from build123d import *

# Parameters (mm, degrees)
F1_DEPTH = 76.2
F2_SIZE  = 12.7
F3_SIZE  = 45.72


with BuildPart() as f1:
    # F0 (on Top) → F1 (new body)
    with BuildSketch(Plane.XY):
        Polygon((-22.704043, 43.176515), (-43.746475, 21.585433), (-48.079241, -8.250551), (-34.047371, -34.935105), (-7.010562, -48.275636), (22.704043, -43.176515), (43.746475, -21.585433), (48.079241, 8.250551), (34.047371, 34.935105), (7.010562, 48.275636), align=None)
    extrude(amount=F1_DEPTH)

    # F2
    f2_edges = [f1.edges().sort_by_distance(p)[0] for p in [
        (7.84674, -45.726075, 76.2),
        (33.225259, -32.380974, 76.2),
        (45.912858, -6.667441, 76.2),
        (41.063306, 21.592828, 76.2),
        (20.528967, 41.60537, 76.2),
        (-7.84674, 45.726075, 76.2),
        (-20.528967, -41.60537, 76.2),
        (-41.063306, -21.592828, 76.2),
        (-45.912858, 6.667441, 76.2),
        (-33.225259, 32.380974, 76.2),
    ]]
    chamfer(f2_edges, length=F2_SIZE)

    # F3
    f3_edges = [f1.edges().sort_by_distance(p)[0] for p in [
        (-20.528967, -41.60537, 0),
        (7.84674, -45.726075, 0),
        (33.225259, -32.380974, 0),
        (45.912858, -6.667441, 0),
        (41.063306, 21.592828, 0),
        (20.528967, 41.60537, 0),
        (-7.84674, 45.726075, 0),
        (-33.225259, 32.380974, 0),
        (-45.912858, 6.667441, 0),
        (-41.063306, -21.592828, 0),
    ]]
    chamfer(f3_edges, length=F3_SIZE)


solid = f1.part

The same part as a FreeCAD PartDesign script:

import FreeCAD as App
import Part
import Sketcher
from FreeCAD import Vector
Q = App.Units.Quantity


def edges_at(feature, points):
    """Names of the edges that pass closest to the given points."""
    edges = feature.Shape.Edges
    near = lambda p: min(range(len(edges)), key=lambda i: edges[i].distToShape(Part.Vertex(*p))[0])
    return sorted({f"Edge{near(p) + 1}" for p in points})


def add_polygon(sketch, points):
    """Adds a closed chain of lines whose ends are joined by coincident constraints."""
    first, n = sketch.GeometryCount, len(points)
    for a, b in zip(points, points[1:] + points[:1]):
        sketch.addGeometry(Part.LineSegment(App.Vector(*a, 0), App.Vector(*b, 0)), False)
    for i in range(n):
        sketch.addConstraint(Sketcher.Constraint("Coincident", first + i, 2, first + (i + 1) % n, 1))

doc = App.newDocument("Part")
body = doc.addObject("PartDesign::Body", "Body")

# Sketch on XY plane
sketch1 = doc.addObject("Sketcher::SketchObject", "Sketch")
body.addObject(sketch1)
sketch1.AttachmentSupport = (doc.XY_Plane, [""])
sketch1.MapMode = "FlatFace"
add_polygon(sketch1, [(-23, 43), (-44, 22), (-48, -8), (-34, -35), (-7, -48), (23, -43), (44, -22), (48, 8), (34, 35), (7, 48)])  # lines 0-9
sketch1.addConstraint(Sketcher.Constraint("Symmetric", 0, 2, 5, 2, -1, 1))
sketch1.addConstraint(Sketcher.Constraint("Symmetric", 1, 2, 6, 2, -1, 1))
sketch1.addConstraint(Sketcher.Constraint("Symmetric", 2, 2, 7, 2, -1, 1))
sketch1.addConstraint(Sketcher.Constraint("Symmetric", 3, 2, 8, 2, -1, 1))
sketch1.addConstraint(Sketcher.Constraint("Symmetric", 4, 2, 9, 2, -1, 1))
sketch1.addConstraint(Sketcher.Constraint("Equal", 0, 1))
sketch1.addConstraint(Sketcher.Constraint("Equal", 1, 2))
sketch1.addConstraint(Sketcher.Constraint("Equal", 2, 3))
sketch1.addConstraint(Sketcher.Constraint("Equal", 3, 4))
sketch1.addConstraint(Sketcher.Constraint("DistanceX", 4, 2, 6, 2, Q("25.375198 mm")))
sketch1.addConstraint(Sketcher.Constraint("DistanceX", 1, 2, -1, 1, Q("48.079241 mm")))
sketch1.addConstraint(Sketcher.Constraint("DistanceY", 1, 2, -1, 1, Q("8.250551 mm")))
sketch1.addConstraint(Sketcher.Constraint("DistanceX", 2, 2, -1, 1, Q("34.047371 mm")))
sketch1.addConstraint(Sketcher.Constraint("DistanceY", 2, 2, 0, 2, Q("56.520538 mm")))
sketch1.addConstraint(Sketcher.Constraint("DistanceX", 2, 2, 3, 2, Q("27.036809 mm")))
pad1 = doc.addObject("PartDesign::Pad", "Pad")
body.addObject(pad1)
pad1.Profile = sketch1
pad1.Length = Q("3 in")
doc.recompute()

chamfer = doc.addObject("PartDesign::Chamfer", "Chamfer")
body.addObject(chamfer)
chamfer.Base = (pad1, edges_at(pad1, [
    (7.847, -45.726, 76.2),
    (33.225, -32.381, 76.2),
    (45.913, -6.667, 76.2),
    (41.063, 21.593, 76.2),
    (20.529, 41.605, 76.2),
    (-7.847, 45.726, 76.2),
    (-20.529, -41.605, 76.2),
    (-41.063, -21.593, 76.2),
    (-45.913, 6.667, 76.2),
    (-33.225, 32.381, 76.2),
]))
chamfer.Size = Q("0.5 in")
doc.recompute()

chamfer2 = doc.addObject("PartDesign::Chamfer", "Chamfer001")
body.addObject(chamfer2)
chamfer2.Base = (chamfer, edges_at(chamfer, [
    (-20.529, -41.605, 0),
    (7.847, -45.726, 0),
    (33.225, -32.381, 0),
    (45.913, -6.667, 0),
    (41.063, 21.593, 0),
    (20.529, 41.605, 0),
    (-7.847, 45.726, 0),
    (-33.225, 32.381, 0),
    (-45.913, 6.667, 0),
    (-41.063, -21.593, 0),
]))
chamfer2.Size = Q("1.8 in")

doc.recompute()
